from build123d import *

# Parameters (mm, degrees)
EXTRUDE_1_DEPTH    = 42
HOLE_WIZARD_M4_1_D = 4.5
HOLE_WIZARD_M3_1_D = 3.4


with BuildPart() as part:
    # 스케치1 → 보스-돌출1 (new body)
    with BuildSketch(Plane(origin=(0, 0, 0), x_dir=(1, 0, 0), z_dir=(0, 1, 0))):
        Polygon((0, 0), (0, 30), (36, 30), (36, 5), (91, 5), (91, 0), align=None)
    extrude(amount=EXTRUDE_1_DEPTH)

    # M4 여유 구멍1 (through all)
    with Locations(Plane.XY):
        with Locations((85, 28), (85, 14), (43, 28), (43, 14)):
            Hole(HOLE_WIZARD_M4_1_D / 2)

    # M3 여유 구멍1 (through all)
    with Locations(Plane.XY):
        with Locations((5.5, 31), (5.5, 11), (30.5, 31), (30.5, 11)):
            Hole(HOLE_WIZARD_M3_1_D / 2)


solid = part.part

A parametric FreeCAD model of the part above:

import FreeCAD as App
import Part
import Sketcher
Q = App.Units.Quantity

doc = App.newDocument("Part")
params = doc.addObject("Spreadsheet::Sheet", "Params")
for row, (alias, value) in enumerate([
    ("sketch1_width", "91 mm"),
    ("sketch1_width2", "55 mm"),
    ("sketch1_height", "30 mm"),
    ("sketch1_height2", "5 mm"),
    ("pad1_length", "42 mm"),
    ("sketch2_diameter", "4.5 mm"),
    ("hole_diameter", "4.5 mm"),
    ("sketch3_diameter", "3.4 mm"),
    ("hole2_diameter", "3.4 mm"),
], start=1):
    params.set(f"A{row}", alias)
    params.set(f"B{row}", "=" + value)
    params.setAlias(f"B{row}", alias)

body = doc.addObject("PartDesign::Body", "Body")

# Sketch on XZ plane
sketch1 = body.newObject("Sketcher::SketchObject", "Sketch")
sketch1.AttachmentSupport = (doc.getObject("XZ_Plane"), [""])
sketch1.MapMode = "FlatFace"
sketch1.addGeometry([
    Part.LineSegment(App.Vector(0, -30, 0), App.Vector(0, 0, 0)),  # 0
    Part.LineSegment(App.Vector(0, 0, 0), App.Vector(91, 0, 0)),  # 1
    Part.LineSegment(App.Vector(91, 0, 0), App.Vector(91, -5, 0)),  # 2
    Part.LineSegment(App.Vector(91, -5, 0), App.Vector(36, -5, 0)),  # 3
    Part.LineSegment(App.Vector(36, -5, 0), App.Vector(36, -30, 0)),  # 4
    Part.LineSegment(App.Vector(36, -30, 0), App.Vector(0, -30, 0)),  # 5
], False)
sketch1.addConstraint([
    Sketcher.Constraint("Coincident", 0, 2, 1, 1),
    Sketcher.Constraint("Coincident", 1, 2, 2, 1),
    Sketcher.Constraint("Coincident", 2, 2, 3, 1),
    Sketcher.Constraint("Coincident", 3, 2, 4, 1),
    Sketcher.Constraint("Coincident", 4, 2, 5, 1),
    Sketcher.Constraint("Coincident", 5, 2, 0, 1),
    Sketcher.Constraint("Vertical", 0),
    Sketcher.Constraint("Horizontal", 1),
    Sketcher.Constraint("Vertical", 2),
    Sketcher.Constraint("Horizontal", 3),
    Sketcher.Constraint("Vertical", 4),
    Sketcher.Constraint("Horizontal", 5),
    Sketcher.Constraint("Coincident", 0, 2, -1, 1),
    Sketcher.Constraint("DistanceX", 1, 1, 1, 2, Q("91 mm")),
    Sketcher.Constraint("DistanceX", 3, 2, 3, 1, Q("55 mm")),
    Sketcher.Constraint("DistanceY", 0, 1, 0, 2, Q("30 mm")),
    Sketcher.Constraint("DistanceY", 2, 2, 2, 1, Q("5 mm")),
])
sketch1.setExpression("Constraints[13]", "Params.sketch1_width")
sketch1.setExpression("Constraints[14]", "Params.sketch1_width2")
sketch1.setExpression("Constraints[15]", "Params.sketch1_height")
sketch1.setExpression("Constraints[16]", "Params.sketch1_height2")
pad1 = body.newObject("PartDesign::Pad", "Pad")
pad1.Profile = sketch1
pad1.setExpression("Length", "Params.pad1_length")
pad1.Reversed = True

# Sketch on XY plane
sketch2 = body.newObject("Sketcher::SketchObject", "Sketch001")
sketch2.AttachmentSupport = (doc.getObject("XY_Plane"), [""])
sketch2.MapMode = "FlatFace"
sketch2.addGeometry([
    Part.Circle(App.Vector(85, 28, 0), App.Vector(0, 0, 1), 2.25),
    Part.Circle(App.Vector(85, 14, 0), App.Vector(0, 0, 1), 2.25),
    Part.Circle(App.Vector(43, 28, 0), App.Vector(0, 0, 1), 2.25),
    Part.Circle(App.Vector(43, 14, 0), App.Vector(0, 0, 1), 2.25),
], False)
sketch2.addConstraint([
    Sketcher.Constraint("Equal", 0, 1),
    Sketcher.Constraint("Equal", 1, 2),
    Sketcher.Constraint("Equal", 2, 3),
    Sketcher.Constraint("Horizontal", 0, 3, 2, 3),
    Sketcher.Constraint("Horizontal", 1, 3, 3, 3),
    Sketcher.Constraint("Vertical", 0, 3, 1, 3),
    Sketcher.Constraint("Vertical", 2, 3, 3, 3),
    Sketcher.Constraint("Diameter", 0, Q("4.5 mm")),
    Sketcher.Constraint("DistanceX", -1, 1, 0, 3, Q("85 mm")),
    Sketcher.Constraint("DistanceY", -1, 1, 0, 3, Q("28 mm")),
    Sketcher.Constraint("DistanceY", -1, 1, 1, 3, Q("14 mm")),
    Sketcher.Constraint("DistanceX", -1, 1, 2, 3, Q("43 mm")),
])
sketch2.setExpression("Constraints[7]", "Params.sketch2_diameter")
doc.recompute()
hole = body.newObject("PartDesign::Hole", "Hole")
hole.Profile = sketch2
hole.ThreadType = "None"
hole.setExpression("Diameter", "Params.hole_diameter")
hole.DepthType = "ThroughAll"

# Sketch on XY plane
sketch3 = body.newObject("Sketcher::SketchObject", "Sketch002")
sketch3.AttachmentSupport = (doc.getObject("XY_Plane"), [""])
sketch3.MapMode = "FlatFace"
sketch3.addGeometry([
    Part.Circle(App.Vector(5.5, 31, 0), App.Vector(0, 0, 1), 1.7),
    Part.Circle(App.Vector(5.5, 11, 0), App.Vector(0, 0, 1), 1.7),
    Part.Circle(App.Vector(30.5, 31, 0), App.Vector(0, 0, 1), 1.7),
    Part.Circle(App.Vector(30.5, 11, 0), App.Vector(0, 0, 1), 1.7),
], False)
sketch3.addConstraint([
    Sketcher.Constraint("Equal", 0, 1),
    Sketcher.Constraint("Equal", 1, 2),
    Sketcher.Constraint("Equal", 2, 3),
    Sketcher.Constraint("Horizontal", 0, 3, 2, 3),
    Sketcher.Constraint("Horizontal", 1, 3, 3, 3),
    Sketcher.Constraint("Vertical", 0, 3, 1, 3),
    Sketcher.Constraint("Vertical", 2, 3, 3, 3),
    Sketcher.Constraint("Diameter", 0, Q("3.4 mm")),
    Sketcher.Constraint("DistanceY", -1, 1, 0, 3, Q("31 mm")),
    Sketcher.Constraint("DistanceY", -1, 1, 1, 3, Q("11 mm")),
    Sketcher.Constraint("DistanceX", 0, 3, 2, 3, Q("25 mm")),
    Sketcher.Constraint("DistanceX", -1, 1, 0, 3, Q("5.5 mm")),
])
sketch3.setExpression("Constraints[7]", "Params.sketch3_diameter")
doc.recompute()
hole2 = body.newObject("PartDesign::Hole", "Hole001")
hole2.Profile = sketch3
hole2.ThreadType = "None"
hole2.setExpression("Diameter", "Params.hole2_diameter")
hole2.DepthType = "ThroughAll"

doc.recompute()
